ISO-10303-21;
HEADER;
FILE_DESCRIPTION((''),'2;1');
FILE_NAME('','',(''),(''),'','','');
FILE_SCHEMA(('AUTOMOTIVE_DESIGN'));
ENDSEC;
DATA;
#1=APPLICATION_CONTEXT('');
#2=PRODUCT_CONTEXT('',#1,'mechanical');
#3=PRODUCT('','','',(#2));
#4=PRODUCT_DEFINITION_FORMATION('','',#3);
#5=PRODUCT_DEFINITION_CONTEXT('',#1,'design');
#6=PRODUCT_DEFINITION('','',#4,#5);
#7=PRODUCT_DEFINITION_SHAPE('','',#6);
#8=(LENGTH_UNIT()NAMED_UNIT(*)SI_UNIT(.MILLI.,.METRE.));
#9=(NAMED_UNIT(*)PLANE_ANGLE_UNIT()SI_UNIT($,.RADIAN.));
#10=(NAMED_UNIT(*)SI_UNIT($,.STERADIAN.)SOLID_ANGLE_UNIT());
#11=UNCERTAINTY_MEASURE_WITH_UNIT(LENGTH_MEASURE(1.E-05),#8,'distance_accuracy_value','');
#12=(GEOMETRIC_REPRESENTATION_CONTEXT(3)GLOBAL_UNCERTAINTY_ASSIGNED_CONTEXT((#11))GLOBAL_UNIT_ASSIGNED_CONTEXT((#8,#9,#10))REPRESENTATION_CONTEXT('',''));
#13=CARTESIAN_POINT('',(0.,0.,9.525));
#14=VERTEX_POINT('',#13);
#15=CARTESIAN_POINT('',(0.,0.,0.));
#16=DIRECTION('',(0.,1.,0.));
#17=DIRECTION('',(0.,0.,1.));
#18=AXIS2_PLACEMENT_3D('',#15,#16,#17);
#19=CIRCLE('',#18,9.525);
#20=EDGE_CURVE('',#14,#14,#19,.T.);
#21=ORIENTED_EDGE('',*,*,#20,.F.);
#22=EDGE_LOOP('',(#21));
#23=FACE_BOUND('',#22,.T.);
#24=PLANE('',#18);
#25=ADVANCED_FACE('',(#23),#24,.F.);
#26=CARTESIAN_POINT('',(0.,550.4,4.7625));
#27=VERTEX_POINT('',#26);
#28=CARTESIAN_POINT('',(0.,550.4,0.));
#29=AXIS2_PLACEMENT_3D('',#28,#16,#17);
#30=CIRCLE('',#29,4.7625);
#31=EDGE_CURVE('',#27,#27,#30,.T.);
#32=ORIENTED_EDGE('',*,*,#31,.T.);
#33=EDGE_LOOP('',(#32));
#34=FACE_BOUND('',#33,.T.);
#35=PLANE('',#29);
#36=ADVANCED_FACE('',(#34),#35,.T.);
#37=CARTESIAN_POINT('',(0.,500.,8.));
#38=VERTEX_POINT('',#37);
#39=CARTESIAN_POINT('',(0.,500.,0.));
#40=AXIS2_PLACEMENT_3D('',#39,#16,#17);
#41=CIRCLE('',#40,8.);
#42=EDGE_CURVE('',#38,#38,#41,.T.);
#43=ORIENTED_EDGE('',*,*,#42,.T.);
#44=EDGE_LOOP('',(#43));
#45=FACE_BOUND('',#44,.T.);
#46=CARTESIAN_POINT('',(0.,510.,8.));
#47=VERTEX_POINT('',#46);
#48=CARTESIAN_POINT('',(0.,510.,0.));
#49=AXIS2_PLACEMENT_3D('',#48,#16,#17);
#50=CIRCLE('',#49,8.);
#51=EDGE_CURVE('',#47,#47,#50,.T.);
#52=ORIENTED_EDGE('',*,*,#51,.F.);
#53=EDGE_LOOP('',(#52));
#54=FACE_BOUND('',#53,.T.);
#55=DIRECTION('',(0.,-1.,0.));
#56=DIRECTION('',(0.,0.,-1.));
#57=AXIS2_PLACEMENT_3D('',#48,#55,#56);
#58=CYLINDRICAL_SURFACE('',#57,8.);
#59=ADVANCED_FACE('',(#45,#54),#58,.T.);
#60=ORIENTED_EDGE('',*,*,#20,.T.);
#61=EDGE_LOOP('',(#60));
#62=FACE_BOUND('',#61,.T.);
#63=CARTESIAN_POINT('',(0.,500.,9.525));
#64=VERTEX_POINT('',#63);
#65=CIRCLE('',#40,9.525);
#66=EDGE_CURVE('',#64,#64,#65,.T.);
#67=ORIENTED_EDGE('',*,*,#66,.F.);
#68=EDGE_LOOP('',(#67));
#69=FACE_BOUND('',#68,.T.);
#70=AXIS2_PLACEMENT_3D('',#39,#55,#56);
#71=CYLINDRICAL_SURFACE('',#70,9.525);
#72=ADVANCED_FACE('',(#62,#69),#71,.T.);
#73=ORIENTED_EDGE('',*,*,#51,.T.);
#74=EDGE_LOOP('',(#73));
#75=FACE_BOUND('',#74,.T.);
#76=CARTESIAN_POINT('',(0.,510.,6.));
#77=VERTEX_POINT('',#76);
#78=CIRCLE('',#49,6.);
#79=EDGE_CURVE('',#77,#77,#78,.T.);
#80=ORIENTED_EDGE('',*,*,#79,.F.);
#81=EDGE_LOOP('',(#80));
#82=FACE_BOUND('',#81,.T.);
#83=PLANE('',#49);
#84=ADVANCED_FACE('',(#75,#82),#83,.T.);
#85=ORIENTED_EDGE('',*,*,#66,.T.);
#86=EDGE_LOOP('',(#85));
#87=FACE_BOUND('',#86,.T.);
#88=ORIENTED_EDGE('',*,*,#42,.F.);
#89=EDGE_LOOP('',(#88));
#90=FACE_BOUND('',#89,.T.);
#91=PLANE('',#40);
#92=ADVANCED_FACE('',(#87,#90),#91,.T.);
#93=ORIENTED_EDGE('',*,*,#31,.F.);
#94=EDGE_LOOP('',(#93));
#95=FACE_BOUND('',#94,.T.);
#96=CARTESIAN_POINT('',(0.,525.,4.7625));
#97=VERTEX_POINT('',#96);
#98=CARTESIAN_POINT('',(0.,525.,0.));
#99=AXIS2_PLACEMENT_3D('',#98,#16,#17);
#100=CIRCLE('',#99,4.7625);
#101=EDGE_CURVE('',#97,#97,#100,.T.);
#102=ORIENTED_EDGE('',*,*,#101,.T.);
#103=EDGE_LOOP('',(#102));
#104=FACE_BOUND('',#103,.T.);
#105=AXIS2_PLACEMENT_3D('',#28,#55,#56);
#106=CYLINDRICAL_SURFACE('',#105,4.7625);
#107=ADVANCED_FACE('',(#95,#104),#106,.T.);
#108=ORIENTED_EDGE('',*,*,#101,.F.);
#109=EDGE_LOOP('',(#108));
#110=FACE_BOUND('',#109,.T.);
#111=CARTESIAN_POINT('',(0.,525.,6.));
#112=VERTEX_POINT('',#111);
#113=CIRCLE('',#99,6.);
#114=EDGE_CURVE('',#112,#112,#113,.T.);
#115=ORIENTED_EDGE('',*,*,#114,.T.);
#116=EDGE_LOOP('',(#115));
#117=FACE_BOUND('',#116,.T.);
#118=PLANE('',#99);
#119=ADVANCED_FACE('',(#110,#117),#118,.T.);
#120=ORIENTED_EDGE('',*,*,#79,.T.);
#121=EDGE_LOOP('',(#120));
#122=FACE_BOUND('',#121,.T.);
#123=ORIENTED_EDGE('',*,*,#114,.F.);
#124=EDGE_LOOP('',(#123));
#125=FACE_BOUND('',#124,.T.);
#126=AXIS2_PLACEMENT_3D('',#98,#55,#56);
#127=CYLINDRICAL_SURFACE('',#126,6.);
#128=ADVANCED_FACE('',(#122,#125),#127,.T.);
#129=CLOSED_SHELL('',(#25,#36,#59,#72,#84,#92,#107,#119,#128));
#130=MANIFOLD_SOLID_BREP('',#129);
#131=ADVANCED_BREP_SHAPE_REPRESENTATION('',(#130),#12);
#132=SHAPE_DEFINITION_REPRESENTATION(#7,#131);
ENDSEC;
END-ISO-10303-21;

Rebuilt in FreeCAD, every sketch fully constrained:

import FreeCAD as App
import Part
import Sketcher
from FreeCAD import Vector
Q = App.Units.Quantity

doc = App.newDocument("Part")
params = doc.addObject("Spreadsheet::Sheet", "Params")
for row, (alias, value) in enumerate([
    ("sketch1_diameter", "19.05 mm"),
    ("pad1_length", "500 mm"),
    ("sketch2_diameter", "16 mm"),
    ("pad2_length", "10 mm"),
    ("sketch3_diameter", "12 mm"),
    ("pad3_length", "15 mm"),
    ("pad4_length", "25.4 mm"),
], start=1):
    params.set(f"A{row}", alias)
    params.set(f"B{row}", "=" + value)
    params.setAlias(f"B{row}", alias)

body = doc.addObject("PartDesign::Body", "Body")

sketch1 = doc.addObject("Sketcher::SketchObject", "Sketch")
body.addObject(sketch1)
sketch1.AttachmentSupport = (doc.XZ_Plane, [""])
sketch1.MapMode = "FlatFace"
sketch1.addGeometry(Part.Circle(Vector(0, 0, 0), Vector(0, 0, 1), 10), False)
sketch1.addConstraint([
    Sketcher.Constraint("Coincident", 0, 3, -1, 1),
    Sketcher.Constraint("Diameter", 0, Q("19.05 mm")),
])
sketch1.setExpression("Constraints[1]", "Params.sketch1_diameter")
pad1 = doc.addObject("PartDesign::Pad", "Pad")
body.addObject(pad1)
pad1.Profile = sketch1
pad1.setExpression("Length", "Params.pad1_length")
pad1.Reversed = True

sketch2 = doc.addObject("Sketcher::SketchObject", "Sketch001")
body.addObject(sketch2)
sketch2.AttachmentSupport = (doc.XZ_Plane, [""])
sketch2.MapMode = "FlatFace"
sketch2.AttachmentOffset = App.Placement(Vector(0, 0, -500), App.Rotation())
sketch2.addGeometry(Part.Circle(Vector(0, 0, 0), Vector(0, 0, 1), 8), False)
sketch2.addConstraint([
    Sketcher.Constraint("Coincident", 0, 3, -1, 1),
    Sketcher.Constraint("Diameter", 0, Q("16 mm")),
])
sketch2.setExpression("Constraints[1]", "Params.sketch2_diameter")
pad2 = doc.addObject("PartDesign::Pad", "Pad001")
body.addObject(pad2)
pad2.Profile = sketch2
pad2.setExpression("Length", "Params.pad2_length")
pad2.Reversed = True

sketch3 = doc.addObject("Sketcher::SketchObject", "Sketch002")
body.addObject(sketch3)
sketch3.AttachmentSupport = (doc.XZ_Plane, [""])
sketch3.MapMode = "FlatFace"
sketch3.AttachmentOffset = App.Placement(Vector(0, 0, -510), App.Rotation())
sketch3.addGeometry(Part.Circle(Vector(0, 0, 0), Vector(0, 0, 1), 6), False)
sketch3.addConstraint([
    Sketcher.Constraint("Coincident", 0, 3, -1, 1),
    Sketcher.Constraint("Diameter", 0, Q("12 mm")),
])
sketch3.setExpression("Constraints[1]", "Params.sketch3_diameter")
pad3 = doc.addObject("PartDesign::Pad", "Pad002")
body.addObject(pad3)
pad3.Profile = sketch3
pad3.setExpression("Length", "Params.pad3_length")
pad3.Reversed = True

sketch4 = doc.addObject("Sketcher::SketchObject", "Sketch003")
body.addObject(sketch4)
sketch4.AttachmentSupport = (doc.XZ_Plane, [""])
sketch4.MapMode = "FlatFace"
sketch4.AttachmentOffset = App.Placement(Vector(0, 0, -525), App.Rotation())
sketch4.addGeometry(Part.Circle(Vector(0, 0, 0), Vector(0, 0, 1), 4.8), False)
sketch4.addConstraint([
    Sketcher.Constraint("Coincident", 0, 3, -1, 1),
    Sketcher.Constraint("Diameter", 0, Q("9.525 mm")),
])
pad4 = doc.addObject("PartDesign::Pad", "Pad003")
body.addObject(pad4)
pad4.Profile = sketch4
pad4.setExpression("Length", "Params.pad4_length")
pad4.Reversed = True

doc.recompute()
